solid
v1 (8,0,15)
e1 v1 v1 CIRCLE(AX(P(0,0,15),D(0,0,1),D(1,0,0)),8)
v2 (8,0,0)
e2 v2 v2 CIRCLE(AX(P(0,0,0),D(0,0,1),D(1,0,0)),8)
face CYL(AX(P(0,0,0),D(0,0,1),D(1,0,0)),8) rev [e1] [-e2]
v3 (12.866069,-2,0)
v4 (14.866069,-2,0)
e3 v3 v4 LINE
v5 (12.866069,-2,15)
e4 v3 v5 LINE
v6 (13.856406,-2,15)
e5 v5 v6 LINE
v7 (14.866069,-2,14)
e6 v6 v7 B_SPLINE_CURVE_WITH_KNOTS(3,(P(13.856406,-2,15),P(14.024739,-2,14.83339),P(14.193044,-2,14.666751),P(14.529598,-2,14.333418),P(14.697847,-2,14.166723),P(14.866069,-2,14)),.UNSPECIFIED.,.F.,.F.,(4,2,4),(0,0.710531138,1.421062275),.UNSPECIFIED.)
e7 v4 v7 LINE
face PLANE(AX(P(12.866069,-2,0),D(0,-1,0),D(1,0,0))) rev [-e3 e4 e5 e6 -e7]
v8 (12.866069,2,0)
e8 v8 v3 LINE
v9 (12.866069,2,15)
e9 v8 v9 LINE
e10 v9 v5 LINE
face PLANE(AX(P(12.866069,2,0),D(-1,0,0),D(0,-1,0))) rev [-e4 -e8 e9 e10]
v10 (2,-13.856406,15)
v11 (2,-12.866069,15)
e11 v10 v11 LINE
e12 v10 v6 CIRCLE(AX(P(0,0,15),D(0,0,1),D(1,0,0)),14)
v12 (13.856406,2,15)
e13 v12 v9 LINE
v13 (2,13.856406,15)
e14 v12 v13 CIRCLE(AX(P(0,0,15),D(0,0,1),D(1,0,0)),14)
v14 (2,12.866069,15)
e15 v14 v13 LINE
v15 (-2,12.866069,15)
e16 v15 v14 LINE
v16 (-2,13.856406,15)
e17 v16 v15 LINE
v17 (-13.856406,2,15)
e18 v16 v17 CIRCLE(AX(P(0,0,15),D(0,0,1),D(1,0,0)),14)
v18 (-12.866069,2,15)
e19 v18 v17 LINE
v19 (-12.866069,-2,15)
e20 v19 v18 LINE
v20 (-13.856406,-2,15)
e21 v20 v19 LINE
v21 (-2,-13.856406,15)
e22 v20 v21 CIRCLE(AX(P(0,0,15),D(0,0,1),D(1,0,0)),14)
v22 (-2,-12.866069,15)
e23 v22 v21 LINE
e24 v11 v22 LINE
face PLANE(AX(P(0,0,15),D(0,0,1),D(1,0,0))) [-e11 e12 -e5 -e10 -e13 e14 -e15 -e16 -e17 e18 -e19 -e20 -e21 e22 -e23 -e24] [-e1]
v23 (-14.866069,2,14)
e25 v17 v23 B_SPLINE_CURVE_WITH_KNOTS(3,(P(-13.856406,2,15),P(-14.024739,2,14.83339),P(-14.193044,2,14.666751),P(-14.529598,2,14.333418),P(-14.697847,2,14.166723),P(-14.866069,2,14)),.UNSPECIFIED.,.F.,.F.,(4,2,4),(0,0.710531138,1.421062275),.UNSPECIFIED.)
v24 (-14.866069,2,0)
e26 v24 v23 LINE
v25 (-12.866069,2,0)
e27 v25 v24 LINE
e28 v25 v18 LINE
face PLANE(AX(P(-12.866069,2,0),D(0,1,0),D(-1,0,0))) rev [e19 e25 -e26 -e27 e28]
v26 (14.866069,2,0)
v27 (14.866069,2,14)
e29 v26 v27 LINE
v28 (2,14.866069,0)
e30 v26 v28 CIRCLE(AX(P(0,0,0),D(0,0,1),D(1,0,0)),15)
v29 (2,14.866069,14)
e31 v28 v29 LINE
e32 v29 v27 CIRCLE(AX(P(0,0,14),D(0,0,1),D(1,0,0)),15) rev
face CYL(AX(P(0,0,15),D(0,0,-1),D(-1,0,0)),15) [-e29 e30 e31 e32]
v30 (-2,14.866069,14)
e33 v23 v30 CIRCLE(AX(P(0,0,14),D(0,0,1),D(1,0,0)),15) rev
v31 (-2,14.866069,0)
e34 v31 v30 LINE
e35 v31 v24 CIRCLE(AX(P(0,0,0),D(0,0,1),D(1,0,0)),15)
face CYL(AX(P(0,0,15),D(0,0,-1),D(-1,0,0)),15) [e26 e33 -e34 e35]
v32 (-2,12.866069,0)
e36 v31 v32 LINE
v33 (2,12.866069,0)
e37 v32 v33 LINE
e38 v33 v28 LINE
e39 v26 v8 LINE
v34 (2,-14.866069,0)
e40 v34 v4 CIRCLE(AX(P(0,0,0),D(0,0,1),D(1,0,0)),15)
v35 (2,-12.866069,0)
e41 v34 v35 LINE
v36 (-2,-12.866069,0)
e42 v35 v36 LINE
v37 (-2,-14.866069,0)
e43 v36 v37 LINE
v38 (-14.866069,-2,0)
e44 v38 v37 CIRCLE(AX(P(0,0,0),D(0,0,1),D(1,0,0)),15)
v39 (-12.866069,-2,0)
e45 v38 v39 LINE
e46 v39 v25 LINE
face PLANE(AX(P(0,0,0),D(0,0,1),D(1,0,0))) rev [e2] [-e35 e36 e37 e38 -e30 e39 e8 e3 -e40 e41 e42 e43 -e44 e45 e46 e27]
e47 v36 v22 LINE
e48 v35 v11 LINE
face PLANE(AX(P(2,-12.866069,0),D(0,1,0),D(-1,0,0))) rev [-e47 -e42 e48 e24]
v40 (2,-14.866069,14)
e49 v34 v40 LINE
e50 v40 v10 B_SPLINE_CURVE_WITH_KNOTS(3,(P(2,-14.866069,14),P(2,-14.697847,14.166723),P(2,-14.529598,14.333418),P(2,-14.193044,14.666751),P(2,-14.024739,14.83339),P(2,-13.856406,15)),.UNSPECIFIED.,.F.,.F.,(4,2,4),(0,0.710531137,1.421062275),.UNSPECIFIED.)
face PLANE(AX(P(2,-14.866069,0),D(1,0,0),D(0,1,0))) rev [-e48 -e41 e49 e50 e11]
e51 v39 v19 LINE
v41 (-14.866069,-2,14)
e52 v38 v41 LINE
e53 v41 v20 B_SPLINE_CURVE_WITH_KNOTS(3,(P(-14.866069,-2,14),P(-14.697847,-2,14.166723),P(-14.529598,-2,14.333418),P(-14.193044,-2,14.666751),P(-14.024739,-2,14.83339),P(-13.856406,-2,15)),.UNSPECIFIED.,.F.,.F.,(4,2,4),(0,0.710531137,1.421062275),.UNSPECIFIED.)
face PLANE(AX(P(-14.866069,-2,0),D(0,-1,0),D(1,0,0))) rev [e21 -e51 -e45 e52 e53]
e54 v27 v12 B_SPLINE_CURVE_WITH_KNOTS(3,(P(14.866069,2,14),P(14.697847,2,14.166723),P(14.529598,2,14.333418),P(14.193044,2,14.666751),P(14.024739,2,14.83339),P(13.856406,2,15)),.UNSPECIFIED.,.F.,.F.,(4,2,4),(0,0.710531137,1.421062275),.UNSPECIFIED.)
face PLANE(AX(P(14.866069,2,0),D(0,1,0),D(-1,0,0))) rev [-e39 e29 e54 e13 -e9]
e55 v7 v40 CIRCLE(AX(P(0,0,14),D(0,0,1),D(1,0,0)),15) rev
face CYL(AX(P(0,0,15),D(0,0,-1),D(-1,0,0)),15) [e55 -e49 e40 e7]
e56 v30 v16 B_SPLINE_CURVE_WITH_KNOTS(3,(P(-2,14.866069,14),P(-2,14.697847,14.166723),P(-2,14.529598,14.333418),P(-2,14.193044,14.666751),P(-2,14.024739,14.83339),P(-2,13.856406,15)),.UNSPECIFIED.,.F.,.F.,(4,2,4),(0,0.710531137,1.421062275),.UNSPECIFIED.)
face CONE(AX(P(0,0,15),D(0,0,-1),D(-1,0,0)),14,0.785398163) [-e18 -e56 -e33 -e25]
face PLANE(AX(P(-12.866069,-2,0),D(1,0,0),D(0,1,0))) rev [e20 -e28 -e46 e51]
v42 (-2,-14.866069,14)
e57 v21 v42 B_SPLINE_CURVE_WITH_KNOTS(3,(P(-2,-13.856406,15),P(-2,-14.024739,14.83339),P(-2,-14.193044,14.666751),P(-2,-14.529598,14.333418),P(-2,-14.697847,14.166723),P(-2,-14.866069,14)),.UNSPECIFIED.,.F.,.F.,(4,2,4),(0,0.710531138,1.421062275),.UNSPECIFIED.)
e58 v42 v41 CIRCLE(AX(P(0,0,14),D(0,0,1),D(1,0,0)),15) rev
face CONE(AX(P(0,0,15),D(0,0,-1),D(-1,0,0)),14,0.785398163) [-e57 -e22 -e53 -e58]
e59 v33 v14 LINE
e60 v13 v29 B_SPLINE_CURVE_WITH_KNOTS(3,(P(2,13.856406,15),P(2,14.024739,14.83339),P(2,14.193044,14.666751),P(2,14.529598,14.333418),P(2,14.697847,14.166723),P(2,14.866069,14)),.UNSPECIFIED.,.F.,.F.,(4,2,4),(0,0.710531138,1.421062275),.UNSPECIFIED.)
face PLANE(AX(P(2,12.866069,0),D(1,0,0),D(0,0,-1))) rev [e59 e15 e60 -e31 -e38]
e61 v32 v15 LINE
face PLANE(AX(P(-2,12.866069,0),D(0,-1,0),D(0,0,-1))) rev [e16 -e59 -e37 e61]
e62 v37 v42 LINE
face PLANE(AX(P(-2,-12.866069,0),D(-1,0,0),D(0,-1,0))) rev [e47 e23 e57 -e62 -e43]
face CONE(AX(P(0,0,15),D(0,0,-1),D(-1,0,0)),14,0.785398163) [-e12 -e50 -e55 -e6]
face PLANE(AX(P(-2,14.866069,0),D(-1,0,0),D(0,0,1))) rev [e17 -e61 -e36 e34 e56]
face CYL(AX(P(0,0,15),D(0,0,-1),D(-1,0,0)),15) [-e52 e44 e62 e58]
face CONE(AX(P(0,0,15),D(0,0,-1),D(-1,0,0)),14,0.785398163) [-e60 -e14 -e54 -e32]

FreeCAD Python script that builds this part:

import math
import FreeCAD as App
import Part
import Sketcher
Q = App.Units.Quantity


def edges_at(feature, points):
    """Names of the edges that pass closest to the given points."""
    edges = feature.Shape.Edges
    near = lambda p: min(range(len(edges)), key=lambda i: edges[i].distToShape(Part.Vertex(*p))[0])
    return sorted({f"Edge{near(p) + 1}" for p in points})

doc = App.newDocument("Part")
params = doc.addObject("Spreadsheet::Sheet", "Params")
for row, (alias, value) in enumerate([
    ("sketch1_diameter", "30 mm"),
    ("pad1_length", "15 mm"),
    ("sketch2_radius", "15 mm"),
    ("sketch2_width", "4 mm"),
    ("sketch2_width2", "2 mm"),
    ("sketch3_diameter", "16 mm"),
    ("chamfer_size", "1 mm"),
], start=1):
    params.set(f"A{row}", alias)
    params.set(f"B{row}", "=" + value)
    params.setAlias(f"B{row}", alias)

body = doc.addObject("PartDesign::Body", "Body")

# Sketch on XY plane
sketch1 = body.newObject("Sketcher::SketchObject", "Sketch")
sketch1.AttachmentSupport = (doc.getObject("XY_Plane"), [""])
sketch1.MapMode = "FlatFace"
sketch1.addGeometry(Part.Circle(App.Vector(0, 0, 0), App.Vector(0, 0, 1), 15), False)
sketch1.addConstraint(Sketcher.Constraint("Coincident", 0, 3, -1, 1))
sketch1.addConstraint(Sketcher.Constraint("Diameter", 0, Q("30 mm")))
sketch1.setExpression("Constraints[1]", "Params.sketch1_diameter")
pad1 = body.newObject("PartDesign::Pad", "Pad")
pad1.Profile = sketch1
pad1.setExpression("Length", "Params.pad1_length")

# Sketch on XY plane
sketch2 = body.newObject("Sketcher::SketchObject", "Sketch001")
sketch2.AttachmentSupport = (doc.getObject("XY_Plane"), [""])
sketch2.MapMode = "FlatFace"
sketch2.AttachmentOffset = App.Placement(App.Vector(0, 0, 15), App.Rotation())
sketch2.addGeometry(Part.LineSegment(App.Vector(-2, 14.9, 0), App.Vector(-2, 12.9, 0)), False)
sketch2.addGeometry(Part.LineSegment(App.Vector(-2, 12.9, 0), App.Vector(2, 12.9, 0)), False)
sketch2.addGeometry(Part.LineSegment(App.Vector(2, 12.9, 0), App.Vector(2, 14.9, 0)), False)
sketch2.addGeometry(Part.ArcOfCircle(Part.Circle(App.Vector(0, 0, 0), App.Vector(0, 0, 1), 15), math.radians(82.34), math.radians(97.66)), False)
sketch2.addGeometry(Part.LineSegment(App.Vector(14.9, 2, 0), App.Vector(12.9, 2, 0)), False)
sketch2.addGeometry(Part.LineSegment(App.Vector(12.9, 2, 0), App.Vector(12.9, -2, 0)), False)
sketch2.addGeometry(Part.LineSegment(App.Vector(12.9, -2, 0), App.Vector(14.9, -2, 0)), False)
sketch2.addGeometry(Part.ArcOfCircle(Part.Circle(App.Vector(0, 0, 0), App.Vector(0, 0, 1), 15), math.radians(-7.66), math.radians(7.66)), False)
sketch2.addGeometry(Part.LineSegment(App.Vector(2, -14.9, 0), App.Vector(2, -12.9, 0)), False)
sketch2.addGeometry(Part.LineSegment(App.Vector(2, -12.9, 0), App.Vector(-2, -12.9, 0)), False)
sketch2.addGeometry(Part.LineSegment(App.Vector(-2, -12.9, 0), App.Vector(-2, -14.9, 0)), False)
sketch2.addGeometry(Part.ArcOfCircle(Part.Circle(App.Vector(0, 0, 0), App.Vector(0, 0, 1), 15), math.radians(-97.66), math.radians(-82.34)), False)
sketch2.addGeometry(Part.LineSegment(App.Vector(-14.9, -2, 0), App.Vector(-12.9, -2, 0)), False)
sketch2.addGeometry(Part.LineSegment(App.Vector(-12.9, -2, 0), App.Vector(-12.9, 2, 0)), False)
sketch2.addGeometry(Part.LineSegment(App.Vector(-12.9, 2, 0), App.Vector(-14.9, 2, 0)), False)
sketch2.addGeometry(Part.ArcOfCircle(Part.Circle(App.Vector(0, 0, 0), App.Vector(0, 0, 1), 15), math.radians(172.34), math.radians(187.66)), False)
sketch2.addConstraint(Sketcher.Constraint("Coincident", 0, 2, 1, 1))
sketch2.addConstraint(Sketcher.Constraint("Coincident", 1, 2, 2, 1))
sketch2.addConstraint(Sketcher.Constraint("Coincident", 2, 2, 3, 1))
sketch2.addConstraint(Sketcher.Constraint("Coincident", 3, 2, 0, 1))
sketch2.addConstraint(Sketcher.Constraint("Coincident", 4, 2, 5, 1))
sketch2.addConstraint(Sketcher.Constraint("Coincident", 5, 2, 6, 1))
sketch2.addConstraint(Sketcher.Constraint("Coincident", 6, 2, 7, 1))
sketch2.addConstraint(Sketcher.Constraint("Coincident", 7, 2, 4, 1))
sketch2.addConstraint(Sketcher.Constraint("Coincident", 8, 2, 9, 1))
sketch2.addConstraint(Sketcher.Constraint("Coincident", 9, 2, 10, 1))
sketch2.addConstraint(Sketcher.Constraint("Coincident", 10, 2, 11, 1))
sketch2.addConstraint(Sketcher.Constraint("Coincident", 11, 2, 8, 1))
sketch2.addConstraint(Sketcher.Constraint("Coincident", 12, 2, 13, 1))
sketch2.addConstraint(Sketcher.Constraint("Coincident", 13, 2, 14, 1))
sketch2.addConstraint(Sketcher.Constraint("Coincident", 14, 2, 15, 1))
sketch2.addConstraint(Sketcher.Constraint("Coincident", 15, 2, 12, 1))
sketch2.addConstraint(Sketcher.Constraint("Vertical", 0))
sketch2.addConstraint(Sketcher.Constraint("Horizontal", 1))
sketch2.addConstraint(Sketcher.Constraint("Vertical", 2))
sketch2.addConstraint(Sketcher.Constraint("Horizontal", 4))
sketch2.addConstraint(Sketcher.Constraint("Vertical", 5))
sketch2.addConstraint(Sketcher.Constraint("Horizontal", 6))
sketch2.addConstraint(Sketcher.Constraint("Vertical", 8))
sketch2.addConstraint(Sketcher.Constraint("Horizontal", 9))
sketch2.addConstraint(Sketcher.Constraint("Vertical", 10))
sketch2.addConstraint(Sketcher.Constraint("Horizontal", 12))
sketch2.addConstraint(Sketcher.Constraint("Vertical", 13))
sketch2.addConstraint(Sketcher.Constraint("Horizontal", 14))
sketch2.addConstraint(Sketcher.Constraint("Coincident", 3, 3, -1, 1))
sketch2.addConstraint(Sketcher.Constraint("Coincident", 7, 3, -1, 1))
sketch2.addConstraint(Sketcher.Constraint("Coincident", 11, 3, -1, 1))
sketch2.addConstraint(Sketcher.Constraint("Coincident", 15, 3, -1, 1))
sketch2.addConstraint(Sketcher.Constraint("Equal", 3, 7))
sketch2.addConstraint(Sketcher.Constraint("Equal", 7, 11))
sketch2.addConstraint(Sketcher.Constraint("Equal", 11, 15))
sketch2.addConstraint(Sketcher.Constraint("Symmetric", 0, 2, 8, 2, -1, 1))
sketch2.addConstraint(Sketcher.Constraint("Symmetric", 4, 2, 12, 2, -1, 1))
sketch2.addConstraint(Sketcher.Constraint("Horizontal", 2, 2, 3, 2))
sketch2.addConstraint(Sketcher.Constraint("Horizontal", 10, 2, 11, 2))
sketch2.addConstraint(Sketcher.Constraint("Horizontal", 6, 2, 12, 2))
sketch2.addConstraint(Sketcher.Constraint("Horizontal", 7, 2, 13, 2))
sketch2.addConstraint(Sketcher.Constraint("Equal", 14, 0))
sketch2.addConstraint(Sketcher.Constraint("Equal", 9, 5))
sketch2.addConstraint(Sketcher.Constraint("Radius", 3, Q("15 mm")))
sketch2.addConstraint(Sketcher.Constraint("DistanceX", 1, 1, 1, 2, Q("4 mm")))
sketch2.addConstraint(Sketcher.Constraint("DistanceX", 4, 2, 4, 1, Q("2 mm")))
sketch2.setExpression("Constraints[43]", "Params.sketch2_radius")
sketch2.setExpression("Constraints[44]", "Params.sketch2_width")
sketch2.setExpression("Constraints[45]", "Params.sketch2_width2")
pocket1 = body.newObject("PartDesign::Pocket", "Pocket")
pocket1.Profile = sketch2
pocket1.Type = "ThroughAll"

# Sketch on XY plane
sketch3 = body.newObject("Sketcher::SketchObject", "Sketch002")
sketch3.AttachmentSupport = (doc.getObject("XY_Plane"), [""])
sketch3.MapMode = "FlatFace"
sketch3.AttachmentOffset = App.Placement(App.Vector(0, 0, 15), App.Rotation())
sketch3.addGeometry(Part.Circle(App.Vector(0, 0, 0), App.Vector(0, 0, 1), 8), False)
sketch3.addConstraint(Sketcher.Constraint("Coincident", 0, 3, -1, 1))
sketch3.addConstraint(Sketcher.Constraint("Diameter", 0, Q("16 mm")))
sketch3.setExpression("Constraints[1]", "Params.sketch3_diameter")
pocket2 = body.newObject("PartDesign::Pocket", "Pocket001")
pocket2.Profile = sketch3
pocket2.Type = "ThroughAll"
doc.recompute()

chamfer = body.newObject("PartDesign::Chamfer", "Chamfer")
chamfer.Base = (pocket2, edges_at(pocket2, [
    (-10.607, 10.607, 15),
    (-10.607, -10.607, 15),
    (10.607, -10.607, 15),
    (10.607, 10.607, 15),
]))
chamfer.setExpression("Size", "Params.chamfer_size")

doc.recompute()
